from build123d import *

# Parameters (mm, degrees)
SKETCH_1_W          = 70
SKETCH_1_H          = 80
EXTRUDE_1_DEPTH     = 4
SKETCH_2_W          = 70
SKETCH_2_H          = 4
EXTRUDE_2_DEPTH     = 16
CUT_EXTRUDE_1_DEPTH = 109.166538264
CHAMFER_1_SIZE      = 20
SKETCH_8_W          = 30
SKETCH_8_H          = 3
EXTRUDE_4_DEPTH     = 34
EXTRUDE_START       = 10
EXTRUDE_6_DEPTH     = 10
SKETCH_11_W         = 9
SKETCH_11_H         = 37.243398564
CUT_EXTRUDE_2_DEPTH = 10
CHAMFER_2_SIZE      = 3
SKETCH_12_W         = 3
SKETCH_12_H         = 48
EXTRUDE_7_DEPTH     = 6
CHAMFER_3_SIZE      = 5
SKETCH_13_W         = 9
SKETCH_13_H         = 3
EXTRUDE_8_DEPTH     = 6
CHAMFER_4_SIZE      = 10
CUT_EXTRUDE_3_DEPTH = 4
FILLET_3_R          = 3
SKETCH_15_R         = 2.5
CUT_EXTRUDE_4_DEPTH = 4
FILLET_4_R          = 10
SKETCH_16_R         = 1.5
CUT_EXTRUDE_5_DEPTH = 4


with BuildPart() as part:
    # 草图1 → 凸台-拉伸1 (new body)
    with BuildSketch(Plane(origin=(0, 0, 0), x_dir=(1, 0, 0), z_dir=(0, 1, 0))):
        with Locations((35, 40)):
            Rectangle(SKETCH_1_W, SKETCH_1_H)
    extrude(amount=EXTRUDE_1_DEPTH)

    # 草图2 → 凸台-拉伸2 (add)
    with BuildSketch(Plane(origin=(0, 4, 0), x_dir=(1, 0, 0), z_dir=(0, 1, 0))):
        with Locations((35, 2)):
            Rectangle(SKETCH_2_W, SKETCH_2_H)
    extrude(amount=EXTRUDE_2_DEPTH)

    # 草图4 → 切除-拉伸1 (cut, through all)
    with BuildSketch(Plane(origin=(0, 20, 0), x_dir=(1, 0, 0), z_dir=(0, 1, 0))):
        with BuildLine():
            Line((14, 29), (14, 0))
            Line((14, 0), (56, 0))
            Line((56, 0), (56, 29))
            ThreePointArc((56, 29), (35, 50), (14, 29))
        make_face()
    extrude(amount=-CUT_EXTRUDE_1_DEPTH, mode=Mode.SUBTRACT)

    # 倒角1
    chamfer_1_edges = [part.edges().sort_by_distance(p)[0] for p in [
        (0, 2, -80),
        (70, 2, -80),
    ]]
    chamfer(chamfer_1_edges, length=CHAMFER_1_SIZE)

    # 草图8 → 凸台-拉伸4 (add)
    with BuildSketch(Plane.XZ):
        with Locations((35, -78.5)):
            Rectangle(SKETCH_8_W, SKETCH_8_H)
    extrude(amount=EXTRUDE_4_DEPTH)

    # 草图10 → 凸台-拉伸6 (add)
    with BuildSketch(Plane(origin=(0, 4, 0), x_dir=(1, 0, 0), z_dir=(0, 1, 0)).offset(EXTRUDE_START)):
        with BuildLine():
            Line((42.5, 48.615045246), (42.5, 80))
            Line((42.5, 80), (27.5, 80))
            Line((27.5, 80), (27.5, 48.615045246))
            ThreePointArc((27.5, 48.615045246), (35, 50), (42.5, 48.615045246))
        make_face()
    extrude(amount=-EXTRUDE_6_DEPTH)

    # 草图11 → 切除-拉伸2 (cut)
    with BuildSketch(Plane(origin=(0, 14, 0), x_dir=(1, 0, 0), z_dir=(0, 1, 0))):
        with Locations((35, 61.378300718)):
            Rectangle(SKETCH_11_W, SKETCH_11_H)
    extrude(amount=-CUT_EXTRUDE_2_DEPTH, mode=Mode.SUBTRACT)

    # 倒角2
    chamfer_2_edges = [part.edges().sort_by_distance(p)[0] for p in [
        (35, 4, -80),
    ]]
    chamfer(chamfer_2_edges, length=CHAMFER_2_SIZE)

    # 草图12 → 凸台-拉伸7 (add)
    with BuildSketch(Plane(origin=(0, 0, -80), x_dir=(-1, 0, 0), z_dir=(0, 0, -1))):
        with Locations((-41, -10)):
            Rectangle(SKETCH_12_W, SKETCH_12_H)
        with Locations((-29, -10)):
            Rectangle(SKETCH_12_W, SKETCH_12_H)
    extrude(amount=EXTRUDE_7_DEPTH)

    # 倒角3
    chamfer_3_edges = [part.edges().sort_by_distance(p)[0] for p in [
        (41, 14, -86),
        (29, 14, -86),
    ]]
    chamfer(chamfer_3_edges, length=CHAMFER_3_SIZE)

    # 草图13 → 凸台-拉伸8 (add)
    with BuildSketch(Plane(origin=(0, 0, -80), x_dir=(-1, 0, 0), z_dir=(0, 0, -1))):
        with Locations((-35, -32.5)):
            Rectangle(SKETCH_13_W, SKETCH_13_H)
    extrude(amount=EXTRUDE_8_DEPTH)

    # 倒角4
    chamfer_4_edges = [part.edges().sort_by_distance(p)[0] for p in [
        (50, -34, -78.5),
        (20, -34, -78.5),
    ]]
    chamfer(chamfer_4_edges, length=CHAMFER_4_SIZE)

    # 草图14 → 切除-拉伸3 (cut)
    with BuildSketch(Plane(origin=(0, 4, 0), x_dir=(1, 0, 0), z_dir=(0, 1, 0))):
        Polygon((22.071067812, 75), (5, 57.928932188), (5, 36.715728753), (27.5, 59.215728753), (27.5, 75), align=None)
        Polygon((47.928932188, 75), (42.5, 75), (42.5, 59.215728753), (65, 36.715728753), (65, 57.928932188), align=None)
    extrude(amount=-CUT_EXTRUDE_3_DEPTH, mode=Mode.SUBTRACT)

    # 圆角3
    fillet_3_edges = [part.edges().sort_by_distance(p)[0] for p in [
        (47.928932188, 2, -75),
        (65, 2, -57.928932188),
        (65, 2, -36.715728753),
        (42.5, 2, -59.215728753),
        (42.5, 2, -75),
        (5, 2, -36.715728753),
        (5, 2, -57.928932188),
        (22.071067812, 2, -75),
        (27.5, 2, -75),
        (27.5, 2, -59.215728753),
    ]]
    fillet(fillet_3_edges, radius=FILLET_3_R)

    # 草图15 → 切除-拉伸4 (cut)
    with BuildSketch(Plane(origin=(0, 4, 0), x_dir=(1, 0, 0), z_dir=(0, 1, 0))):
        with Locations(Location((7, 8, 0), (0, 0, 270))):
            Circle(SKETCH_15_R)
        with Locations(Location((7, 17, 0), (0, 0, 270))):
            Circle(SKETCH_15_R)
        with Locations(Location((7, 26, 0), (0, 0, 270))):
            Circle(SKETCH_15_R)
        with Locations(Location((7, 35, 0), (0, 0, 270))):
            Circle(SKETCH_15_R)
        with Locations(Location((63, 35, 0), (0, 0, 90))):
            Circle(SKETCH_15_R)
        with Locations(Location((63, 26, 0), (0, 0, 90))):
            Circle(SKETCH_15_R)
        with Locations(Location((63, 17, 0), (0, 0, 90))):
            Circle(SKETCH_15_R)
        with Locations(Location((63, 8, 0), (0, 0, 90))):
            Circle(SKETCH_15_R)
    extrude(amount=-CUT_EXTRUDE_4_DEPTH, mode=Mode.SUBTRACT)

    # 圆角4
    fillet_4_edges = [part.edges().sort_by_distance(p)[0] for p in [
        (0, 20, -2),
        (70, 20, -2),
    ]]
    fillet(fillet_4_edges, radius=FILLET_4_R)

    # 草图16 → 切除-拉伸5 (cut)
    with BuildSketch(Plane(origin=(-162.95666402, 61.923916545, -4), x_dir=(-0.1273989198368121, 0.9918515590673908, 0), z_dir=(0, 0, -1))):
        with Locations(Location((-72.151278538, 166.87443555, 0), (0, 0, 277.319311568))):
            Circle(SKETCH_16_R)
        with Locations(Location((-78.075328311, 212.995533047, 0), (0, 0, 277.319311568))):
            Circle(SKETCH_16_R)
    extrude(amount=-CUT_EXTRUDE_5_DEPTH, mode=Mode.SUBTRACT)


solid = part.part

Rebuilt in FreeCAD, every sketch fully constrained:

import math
import FreeCAD as App
import Part
import Sketcher

V = App.Vector
Q = App.Units.Quantity


def edges_at(feature, points):
    """Names of the edges that pass closest to the given points."""
    edges = feature.Shape.Edges
    near = lambda p: min(range(len(edges)), key=lambda i: edges[i].distToShape(Part.Vertex(*p))[0])
    return sorted({f"Edge{near(p) + 1}" for p in points})

doc = App.newDocument("Part")
params = doc.addObject("Spreadsheet::Sheet", "Params")
for row, (alias, value) in enumerate([
    ("sketch1_width", "70 mm"),
    ("sketch1_height", "80 mm"),
    ("pad1_length", "4 mm"),
    ("sketch2_width", "70 mm"),
    ("sketch2_height", "4 mm"),
    ("pad2_length", "16 mm"),
    ("sketch3_radius", "21 mm"),
    ("sketch3_height", "29 mm"),
    ("chamfer_size", "20 mm"),
    ("sketch4_width", "30 mm"),
    ("sketch4_height", "3 mm"),
    ("pad3_length", "34 mm"),
    ("sketch5_radius", "21 mm"),
    ("sketch5_width", "15 mm"),
    ("pad4_length", "10 mm"),
    ("sketch6_width", "9 mm"),
    ("pocket2_length", "10 mm"),
    ("chamfer2_size", "3 mm"),
    ("sketch7_width", "3 mm"),
    ("sketch7_height", "48 mm"),
    ("pad5_length", "6 mm"),
    ("chamfer3_size", "5 mm"),
    ("sketch8_width", "9 mm"),
    ("sketch8_height", "3 mm"),
    ("pad6_length", "6 mm"),
    ("chamfer4_size", "10 mm"),
    ("pocket3_length", "4 mm"),
    ("fillet_radius", "3 mm"),
    ("sketch10_diameter", "5 mm"),
    ("pocket4_length", "4 mm"),
    ("fillet2_radius", "10 mm"),
    ("sketch11_diameter", "3 mm"),
    ("pocket5_length", "4 mm"),
], start=1):
    params.set(f"A{row}", alias)
    params.set(f"B{row}", "=" + value)
    params.setAlias(f"B{row}", alias)

body = doc.addObject("PartDesign::Body", "Body")

# Sketch on XZ plane
sketch1 = doc.addObject("Sketcher::SketchObject", "Sketch")
body.addObject(sketch1)
sketch1.AttachmentSupport = (doc.XZ_Plane, [""])
sketch1.MapMode = "FlatFace"
sketch1.addGeometry([
    Part.LineSegment(V(0, -80, 0), V(0, 0, 0)),
    Part.LineSegment(V(0, 0, 0), V(70, 0, 0)),
    Part.LineSegment(V(70, 0, 0), V(70, -80, 0)),
    Part.LineSegment(V(70, -80, 0), V(0, -80, 0)),
], False)
sketch1.addConstraint([
    Sketcher.Constraint("Coincident", 0, 2, 1, 1),
    Sketcher.Constraint("Coincident", 1, 2, 2, 1),
    Sketcher.Constraint("Coincident", 2, 2, 3, 1),
    Sketcher.Constraint("Coincident", 3, 2, 0, 1),
    Sketcher.Constraint("Vertical", 0),
    Sketcher.Constraint("Horizontal", 1),
    Sketcher.Constraint("Vertical", 2),
    Sketcher.Constraint("Horizontal", 3),
    Sketcher.Constraint("Coincident", 0, 2, -1, 1),
    Sketcher.Constraint("DistanceX", 1, 1, 1, 2, Q("70 mm")),
    Sketcher.Constraint("DistanceY", 0, 1, 0, 2, Q("80 mm")),
])
sketch1.setExpression("Constraints[9]", "Params.sketch1_width")
sketch1.setExpression("Constraints[10]", "Params.sketch1_height")
pad1 = doc.addObject("PartDesign::Pad", "Pad")
body.addObject(pad1)
pad1.Profile = sketch1
pad1.setExpression("Length", "Params.pad1_length")
pad1.Reversed = True

# Sketch on XZ plane
sketch2 = doc.addObject("Sketcher::SketchObject", "Sketch001")
body.addObject(sketch2)
sketch2.AttachmentSupport = (doc.XZ_Plane, [""])
sketch2.MapMode = "FlatFace"
sketch2.AttachmentOffset = App.Placement(V(0, 0, -4), App.Rotation())
sketch2.addGeometry([
    Part.LineSegment(V(0, -4, 0), V(0, 0, 0)),
    Part.LineSegment(V(0, 0, 0), V(70, 0, 0)),
    Part.LineSegment(V(70, 0, 0), V(70, -4, 0)),
    Part.LineSegment(V(70, -4, 0), V(0, -4, 0)),
], False)
sketch2.addConstraint([
    Sketcher.Constraint("Coincident", 0, 2, 1, 1),
    Sketcher.Constraint("Coincident", 1, 2, 2, 1),
    Sketcher.Constraint("Coincident", 2, 2, 3, 1),
    Sketcher.Constraint("Coincident", 3, 2, 0, 1),
    Sketcher.Constraint("Vertical", 0),
    Sketcher.Constraint("Horizontal", 1),
    Sketcher.Constraint("Vertical", 2),
    Sketcher.Constraint("Horizontal", 3),
    Sketcher.Constraint("Coincident", 0, 2, -1, 1),
    Sketcher.Constraint("DistanceX", 1, 1, 1, 2, Q("70 mm")),
    Sketcher.Constraint("DistanceY", 0, 1, 0, 2, Q("4 mm")),
])
sketch2.setExpression("Constraints[9]", "Params.sketch2_width")
sketch2.setExpression("Constraints[10]", "Params.sketch2_height")
pad2 = doc.addObject("PartDesign::Pad", "Pad001")
body.addObject(pad2)
pad2.Profile = sketch2
pad2.setExpression("Length", "Params.pad2_length")
pad2.Reversed = True

# Sketch on XZ plane
sketch3 = doc.addObject("Sketcher::SketchObject", "Sketch002")
body.addObject(sketch3)
sketch3.AttachmentSupport = (doc.XZ_Plane, [""])
sketch3.MapMode = "FlatFace"
sketch3.AttachmentOffset = App.Placement(V(0, 0, -20), App.Rotation())
sketch3.addGeometry([
    Part.LineSegment(V(14, -29, 0), V(14, 0, 0)),
    Part.LineSegment(V(14, 0, 0), V(56, 0, 0)),
    Part.LineSegment(V(56, 0, 0), V(56, -29, 0)),
    Part.ArcOfCircle(Part.Circle(V(35, -29, 0), V(0, 0, 1), 21), math.radians(180), math.radians(360)),
], False)
sketch3.addConstraint([
    Sketcher.Constraint("Coincident", 0, 2, 1, 1),
    Sketcher.Constraint("Coincident", 1, 2, 2, 1),
    Sketcher.Constraint("Tangent", 2, 2, 3, 2),
    Sketcher.Constraint("Tangent", 3, 1, 0, 1),
    Sketcher.Constraint("Vertical", 0),
    Sketcher.Constraint("Horizontal", 1),
    Sketcher.Constraint("Vertical", 2),
    Sketcher.Constraint("PointOnObject", 0, 2, -1),
    Sketcher.Constraint("Radius", 3, Q("21 mm")),
    Sketcher.Constraint("DistanceY", 0, 1, 0, 2, Q("29 mm")),
    Sketcher.Constraint("DistanceX", -1, 1, 3, 3, Q("35 mm")),
])
sketch3.setExpression("Constraints[8]", "Params.sketch3_radius")
sketch3.setExpression("Constraints[9]", "Params.sketch3_height")
pocket1 = doc.addObject("PartDesign::Pocket", "Pocket")
body.addObject(pocket1)
pocket1.Profile = sketch3
pocket1.Type = "ThroughAll"
pocket1.Reversed = True
doc.recompute()

chamfer = doc.addObject("PartDesign::Chamfer", "Chamfer")
body.addObject(chamfer)
chamfer.Base = (pocket1, edges_at(pocket1, [(0, 2, -80), (70, 2, -80)]))
chamfer.setExpression("Size", "Params.chamfer_size")

# Sketch on XZ plane
sketch4 = doc.addObject("Sketcher::SketchObject", "Sketch003")
body.addObject(sketch4)
sketch4.AttachmentSupport = (doc.XZ_Plane, [""])
sketch4.MapMode = "FlatFace"
sketch4.addGeometry([
    Part.LineSegment(V(20, -77, 0), V(20, -80, 0)),
    Part.LineSegment(V(20, -80, 0), V(50, -80, 0)),
    Part.LineSegment(V(50, -80, 0), V(50, -77, 0)),
    Part.LineSegment(V(50, -77, 0), V(20, -77, 0)),
], False)
sketch4.addConstraint([
    Sketcher.Constraint("Coincident", 0, 2, 1, 1),
    Sketcher.Constraint("Coincident", 1, 2, 2, 1),
    Sketcher.Constraint("Coincident", 2, 2, 3, 1),
    Sketcher.Constraint("Coincident", 3, 2, 0, 1),
    Sketcher.Constraint("Vertical", 0),
    Sketcher.Constraint("Horizontal", 1),
    Sketcher.Constraint("Vertical", 2),
    Sketcher.Constraint("Horizontal", 3),
    Sketcher.Constraint("DistanceX", 1, 1, 1, 2, Q("30 mm")),
    Sketcher.Constraint("DistanceY", 0, 2, 0, 1, Q("3 mm")),
    Sketcher.Constraint("DistanceX", -1, 1, 0, 2, Q("20 mm")),
    Sketcher.Constraint("DistanceY", 0, 2, -1, 1, Q("80 mm")),
])
sketch4.setExpression("Constraints[8]", "Params.sketch4_width")
sketch4.setExpression("Constraints[9]", "Params.sketch4_height")
pad3 = doc.addObject("PartDesign::Pad", "Pad002")
body.addObject(pad3)
pad3.Profile = sketch4
pad3.setExpression("Length", "Params.pad3_length")

# Sketch on XZ plane
sketch5 = doc.addObject("Sketcher::SketchObject", "Sketch004")
body.addObject(sketch5)
sketch5.AttachmentSupport = (doc.XZ_Plane, [""])
sketch5.MapMode = "FlatFace"
sketch5.AttachmentOffset = App.Placement(V(0, 0, -14), App.Rotation())
sketch5.addGeometry([
    Part.LineSegment(V(42.5, -48.615045, 0), V(42.5, -80, 0)),
    Part.LineSegment(V(42.5, -80, 0), V(27.5, -80, 0)),
    Part.LineSegment(V(27.5, -80, 0), V(27.5, -48.615045, 0)),
    Part.ArcOfCircle(Part.Circle(V(35, -29, 0), V(0, 0, 1), 21), math.radians(-110.924832), math.radians(-69.075168)),
], False)
sketch5.addConstraint([
    Sketcher.Constraint("Coincident", 0, 2, 1, 1),
    Sketcher.Constraint("Coincident", 1, 2, 2, 1),
    Sketcher.Constraint("Coincident", 2, 2, 3, 1),
    Sketcher.Constraint("Coincident", 3, 2, 0, 1),
    Sketcher.Constraint("Vertical", 0),
    Sketcher.Constraint("Horizontal", 1),
    Sketcher.Constraint("Vertical", 2),
    Sketcher.Constraint("Horizontal", 2, 2, 3, 2),
    Sketcher.Constraint("Radius", 3, Q("21 mm")),
    Sketcher.Constraint("DistanceX", 1, 2, 1, 1, Q("15 mm")),
    Sketcher.Constraint("DistanceX", -1, 1, 3, 3, Q("35 mm")),
    Sketcher.Constraint("DistanceY", 3, 3, -1, 1, Q("29 mm")),
    Sketcher.Constraint("DistanceY", 0, 2, -1, 1, Q("80 mm")),
])
sketch5.setExpression("Constraints[8]", "Params.sketch5_radius")
sketch5.setExpression("Constraints[9]", "Params.sketch5_width")
pad4 = doc.addObject("PartDesign::Pad", "Pad003")
body.addObject(pad4)
pad4.Profile = sketch5
pad4.setExpression("Length", "Params.pad4_length")

# Sketch on XZ plane
sketch6 = doc.addObject("Sketcher::SketchObject", "Sketch005")
body.addObject(sketch6)
sketch6.AttachmentSupport = (doc.XZ_Plane, [""])
sketch6.MapMode = "FlatFace"
sketch6.AttachmentOffset = App.Placement(V(0, 0, -14), App.Rotation())
sketch6.addGeometry([
    Part.LineSegment(V(30.5, -80, 0), V(30.5, -42.756601, 0)),
    Part.LineSegment(V(30.5, -42.756601, 0), V(39.5, -42.756601, 0)),
    Part.LineSegment(V(39.5, -42.756601, 0), V(39.5, -80, 0)),
    Part.LineSegment(V(39.5, -80, 0), V(30.5, -80, 0)),
], False)
sketch6.addConstraint([
    Sketcher.Constraint("Coincident", 0, 2, 1, 1),
    Sketcher.Constraint("Coincident", 1, 2, 2, 1),
    Sketcher.Constraint("Coincident", 2, 2, 3, 1),
    Sketcher.Constraint("Coincident", 3, 2, 0, 1),
    Sketcher.Constraint("Vertical", 0),
    Sketcher.Constraint("Horizontal", 1),
    Sketcher.Constraint("Vertical", 2),
    Sketcher.Constraint("Horizontal", 3),
    Sketcher.Constraint("DistanceX", 1, 1, 1, 2, Q("9 mm")),
    Sketcher.Constraint("DistanceY", 2, 2, -1, 1, Q("80 mm")),
    Sketcher.Constraint("DistanceX", -1, 1, 0, 2, Q("30.5 mm")),
    Sketcher.Constraint("DistanceY", 0, 1, 0, 2, Q("37.243399 mm")),
])
sketch6.setExpression("Constraints[8]", "Params.sketch6_width")
pocket2 = doc.addObject("PartDesign::Pocket", "Pocket001")
body.addObject(pocket2)
pocket2.Profile = sketch6
pocket2.setExpression("Length", "Params.pocket2_length")
pocket2.Reversed = True
doc.recompute()

chamfer2 = doc.addObject("PartDesign::Chamfer", "Chamfer001")
body.addObject(chamfer2)
chamfer2.Base = (pocket2, edges_at(pocket2, [(35, 4, -80)]))
chamfer2.setExpression("Size", "Params.chamfer2_size")

# Sketch on XY plane
sketch7 = doc.addObject("Sketcher::SketchObject", "Sketch006")
body.addObject(sketch7)
sketch7.AttachmentSupport = (doc.XY_Plane, [""])
sketch7.MapMode = "FlatFace"
sketch7.AttachmentOffset = App.Placement(V(0, 0, -80), App.Rotation())
sketch7.addGeometry([
    Part.LineSegment(V(42.5, 14, 0), V(42.5, -34, 0)),  # 0
    Part.LineSegment(V(42.5, -34, 0), V(39.5, -34, 0)),  # 1
    Part.LineSegment(V(39.5, -34, 0), V(39.5, 14, 0)),  # 2
    Part.LineSegment(V(39.5, 14, 0), V(42.5, 14, 0)),  # 3
    Part.LineSegment(V(30.5, 14, 0), V(30.5, -34, 0)),  # 4
    Part.LineSegment(V(30.5, -34, 0), V(27.5, -34, 0)),  # 5
    Part.LineSegment(V(27.5, -34, 0), V(27.5, 14, 0)),  # 6
    Part.LineSegment(V(27.5, 14, 0), V(30.5, 14, 0)),  # 7
], False)
sketch7.addConstraint([
    Sketcher.Constraint("Coincident", 0, 2, 1, 1),
    Sketcher.Constraint("Coincident", 1, 2, 2, 1),
    Sketcher.Constraint("Coincident", 2, 2, 3, 1),
    Sketcher.Constraint("Coincident", 3, 2, 0, 1),
    Sketcher.Constraint("Coincident", 4, 2, 5, 1),
    Sketcher.Constraint("Coincident", 5, 2, 6, 1),
    Sketcher.Constraint("Coincident", 6, 2, 7, 1),
    Sketcher.Constraint("Coincident", 7, 2, 4, 1),
    Sketcher.Constraint("Vertical", 0),
    Sketcher.Constraint("Horizontal", 1),
    Sketcher.Constraint("Vertical", 2),
    Sketcher.Constraint("Horizontal", 3),
    Sketcher.Constraint("Vertical", 4),
    Sketcher.Constraint("Horizontal", 5),
    Sketcher.Constraint("Vertical", 6),
    Sketcher.Constraint("Horizontal", 7),
    Sketcher.Constraint("Horizontal", 1, 2, 4, 2),
    Sketcher.Constraint("Horizontal", 3, 2, 6, 2),
    Sketcher.Constraint("Equal", 3, 5),
    Sketcher.Constraint("DistanceX", 1, 2, 1, 1, Q("3 mm")),
    Sketcher.Constraint("DistanceY", 0, 2, 0, 1, Q("48 mm")),
    Sketcher.Constraint("DistanceY", 0, 2, -1, 1, Q("34 mm")),
    Sketcher.Constraint("DistanceX", 4, 2, 1, 2, Q("9 mm")),
    Sketcher.Constraint("DistanceX", -1, 1, 0, 2, Q("42.5 mm")),
])
sketch7.setExpression("Constraints[19]", "Params.sketch7_width")
sketch7.setExpression("Constraints[20]", "Params.sketch7_height")
pad5 = doc.addObject("PartDesign::Pad", "Pad004")
body.addObject(pad5)
pad5.Profile = sketch7
pad5.setExpression("Length", "Params.pad5_length")
pad5.Reversed = True
doc.recompute()

chamfer3 = doc.addObject("PartDesign::Chamfer", "Chamfer002")
body.addObject(chamfer3)
chamfer3.Base = (pad5, edges_at(pad5, [(41, 14, -86), (29, 14, -86)]))
chamfer3.setExpression("Size", "Params.chamfer3_size")

# Sketch on XY plane
sketch8 = doc.addObject("Sketcher::SketchObject", "Sketch007")
body.addObject(sketch8)
sketch8.AttachmentSupport = (doc.XY_Plane, [""])
sketch8.MapMode = "FlatFace"
sketch8.AttachmentOffset = App.Placement(V(0, 0, -80), App.Rotation())
sketch8.addGeometry([
    Part.LineSegment(V(39.5, -31, 0), V(39.5, -34, 0)),
    Part.LineSegment(V(39.5, -34, 0), V(30.5, -34, 0)),
    Part.LineSegment(V(30.5, -34, 0), V(30.5, -31, 0)),
    Part.LineSegment(V(30.5, -31, 0), V(39.5, -31, 0)),
], False)
sketch8.addConstraint([
    Sketcher.Constraint("Coincident", 0, 2, 1, 1),
    Sketcher.Constraint("Coincident", 1, 2, 2, 1),
    Sketcher.Constraint("Coincident", 2, 2, 3, 1),
    Sketcher.Constraint("Coincident", 3, 2, 0, 1),
    Sketcher.Constraint("Vertical", 0),
    Sketcher.Constraint("Horizontal", 1),
    Sketcher.Constraint("Vertical", 2),
    Sketcher.Constraint("Horizontal", 3),
    Sketcher.Constraint("DistanceX", 1, 2, 1, 1, Q("9 mm")),
    Sketcher.Constraint("DistanceY", 0, 2, 0, 1, Q("3 mm")),
    Sketcher.Constraint("DistanceY", 0, 2, -1, 1, Q("34 mm")),
    Sketcher.Constraint("DistanceX", -1, 1, 0, 2, Q("39.5 mm")),
])
sketch8.setExpression("Constraints[8]", "Params.sketch8_width")
sketch8.setExpression("Constraints[9]", "Params.sketch8_height")
pad6 = doc.addObject("PartDesign::Pad", "Pad005")
body.addObject(pad6)
pad6.Profile = sketch8
pad6.setExpression("Length", "Params.pad6_length")
pad6.Reversed = True
doc.recompute()

chamfer4 = doc.addObject("PartDesign::Chamfer", "Chamfer003")
body.addObject(chamfer4)
chamfer4.Base = (pad6, edges_at(pad6, [(50, -34, -78.5), (20, -34, -78.5)]))
chamfer4.setExpression("Size", "Params.chamfer4_size")

# Sketch on XZ plane
sketch9 = doc.addObject("Sketcher::SketchObject", "Sketch008")
body.addObject(sketch9)
sketch9.AttachmentSupport = (doc.XZ_Plane, [""])
sketch9.MapMode = "FlatFace"
sketch9.AttachmentOffset = App.Placement(V(0, 0, -4), App.Rotation())
sketch9.addGeometry([
    Part.LineSegment(V(22.071068, -75, 0), V(5, -57.928932, 0)),  # 0
    Part.LineSegment(V(5, -57.928932, 0), V(5, -36.715729, 0)),  # 1
    Part.LineSegment(V(5, -36.715729, 0), V(27.5, -59.215729, 0)),  # 2
    Part.LineSegment(V(27.5, -59.215729, 0), V(27.5, -75, 0)),  # 3
    Part.LineSegment(V(27.5, -75, 0), V(22.071068, -75, 0)),  # 4
    Part.LineSegment(V(47.928932, -75, 0), V(42.5, -75, 0)),  # 5
    Part.LineSegment(V(42.5, -75, 0), V(42.5, -59.215729, 0)),  # 6
    Part.LineSegment(V(42.5, -59.215729, 0), V(65, -36.715729, 0)),  # 7
    Part.LineSegment(V(65, -36.715729, 0), V(65, -57.928932, 0)),  # 8
    Part.LineSegment(V(65, -57.928932, 0), V(47.928932, -75, 0)),  # 9
], False)
sketch9.addConstraint([
    Sketcher.Constraint("Coincident", 0, 2, 1, 1),
    Sketcher.Constraint("Coincident", 1, 2, 2, 1),
    Sketcher.Constraint("Coincident", 2, 2, 3, 1),
    Sketcher.Constraint("Coincident", 3, 2, 4, 1),
    Sketcher.Constraint("Coincident", 4, 2, 0, 1),
    Sketcher.Constraint("Coincident", 5, 2, 6, 1),
    Sketcher.Constraint("Coincident", 6, 2, 7, 1),
    Sketcher.Constraint("Coincident", 7, 2, 8, 1),
    Sketcher.Constraint("Coincident", 8, 2, 9, 1),
    Sketcher.Constraint("Coincident", 9, 2, 5, 1),
    Sketcher.Constraint("Vertical", 1),
    Sketcher.Constraint("Vertical", 3),
    Sketcher.Constraint("Horizontal", 4),
    Sketcher.Constraint("Horizontal", 5),
    Sketcher.Constraint("Vertical", 6),
    Sketcher.Constraint("Vertical", 8),
    Sketcher.Constraint("Parallel", 0, 2),
    Sketcher.Constraint("Perpendicular", 2, 7),
    Sketcher.Constraint("Parallel", 7, 9),
    Sketcher.Constraint("Horizontal", 4, 2, 5, 2),
    Sketcher.Constraint("Horizontal", 2, 2, 6, 2),
    Sketcher.Constraint("Horizontal", 1, 2, 7, 2),
    Sketcher.Constraint("Horizontal", 0, 2, 8, 2),
    Sketcher.Constraint("Equal", 4, 5),
    Sketcher.Constraint("DistanceX", -1, 1, 0, 2, Q("5 mm")),
    Sketcher.Constraint("DistanceY", 3, 2, -1, 1, Q("75 mm")),
    Sketcher.Constraint("DistanceX", -1, 1, 7, 2, Q("65 mm")),
    Sketcher.Constraint("DistanceX", 3, 2, 5, 2, Q("15 mm")),
    Sketcher.Constraint("DistanceY", 3, 2, 3, 1, Q("15.784271 mm")),
    Sketcher.Constraint("DistanceX", 4, 2, 4, 1, Q("5.428932 mm")),
])
pocket3 = doc.addObject("PartDesign::Pocket", "Pocket002")
body.addObject(pocket3)
pocket3.Profile = sketch9
pocket3.setExpression("Length", "Params.pocket3_length")
pocket3.Reversed = True
doc.recompute()

fillet = doc.addObject("PartDesign::Fillet", "Fillet")
body.addObject(fillet)
fillet.Base = (pocket3, edges_at(pocket3, [
    (47.929, 2, -75),
    (65, 2, -57.929),
    (65, 2, -36.716),
    (42.5, 2, -59.216),
    (42.5, 2, -75),
    (5, 2, -36.716),
    (5, 2, -57.929),
    (22.071, 2, -75),
    (27.5, 2, -75),
    (27.5, 2, -59.216),
]))
fillet.setExpression("Radius", "Params.fillet_radius")

# Sketch on XZ plane
sketch10 = doc.addObject("Sketcher::SketchObject", "Sketch009")
body.addObject(sketch10)
sketch10.AttachmentSupport = (doc.XZ_Plane, [""])
sketch10.MapMode = "FlatFace"
sketch10.AttachmentOffset = App.Placement(V(0, 0, -4), App.Rotation())
sketch10.addGeometry([
    Part.Circle(V(7, -8, 0), V(0, 0, 1), 2.5),  # 0
    Part.Circle(V(7, -17, 0), V(0, 0, 1), 2.5),  # 1
    Part.Circle(V(7, -26, 0), V(0, 0, 1), 2.5),  # 2
    Part.Circle(V(7, -35, 0), V(0, 0, 1), 2.5),  # 3
    Part.Circle(V(63, -35, 0), V(0, 0, 1), 2.5),  # 4
    Part.Circle(V(63, -26, 0), V(0, 0, 1), 2.5),  # 5
    Part.Circle(V(63, -17, 0), V(0, 0, 1), 2.5),  # 6
    Part.Circle(V(63, -8, 0), V(0, 0, 1), 2.5),  # 7
], False)
sketch10.addConstraint([
    Sketcher.Constraint("Equal", 0, 1),
    Sketcher.Constraint("Equal", 1, 2),
    Sketcher.Constraint("Equal", 2, 3),
    Sketcher.Constraint("Equal", 3, 4),
    Sketcher.Constraint("Equal", 4, 5),
    Sketcher.Constraint("Equal", 5, 6),
    Sketcher.Constraint("Equal", 6, 7),
    Sketcher.Constraint("Horizontal", 3, 3, 4, 3),
    Sketcher.Constraint("Horizontal", 2, 3, 5, 3),
    Sketcher.Constraint("Horizontal", 1, 3, 6, 3),
    Sketcher.Constraint("Horizontal", 0, 3, 7, 3),
    Sketcher.Constraint("Vertical", 0, 3, 1, 3),
    Sketcher.Constraint("Vertical", 1, 3, 2, 3),
    Sketcher.Constraint("Vertical", 2, 3, 3, 3),
    Sketcher.Constraint("Vertical", 4, 3, 5, 3),
    Sketcher.Constraint("Vertical", 5, 3, 6, 3),
    Sketcher.Constraint("Vertical", 6, 3, 7, 3),
    Sketcher.Constraint("Diameter", 0, Q("5 mm")),
    Sketcher.Constraint("DistanceX", -1, 1, 0, 3, Q("7 mm")),
    Sketcher.Constraint("DistanceY", 0, 3, -1, 1, Q("8 mm")),
    Sketcher.Constraint("DistanceY", 1, 3, -1, 1, Q("17 mm")),
    Sketcher.Constraint("DistanceY", 2, 3, -1, 1, Q("26 mm")),
    Sketcher.Constraint("DistanceY", 3, 3, -1, 1, Q("35 mm")),
    Sketcher.Constraint("DistanceX", -1, 1, 4, 3, Q("63 mm")),
])
sketch10.setExpression("Constraints[17]", "Params.sketch10_diameter")
pocket4 = doc.addObject("PartDesign::Pocket", "Pocket003")
body.addObject(pocket4)
pocket4.Profile = sketch10
pocket4.setExpression("Length", "Params.pocket4_length")
pocket4.Reversed = True
doc.recompute()

fillet2 = doc.addObject("PartDesign::Fillet", "Fillet001")
body.addObject(fillet2)
fillet2.Base = (pocket4, edges_at(pocket4, [(0, 20, -2), (70, 20, -2)]))
fillet2.setExpression("Radius", "Params.fillet2_radius")

# Sketch on XY plane
sketch11 = doc.addObject("Sketcher::SketchObject", "Sketch010")
body.addObject(sketch11)
sketch11.AttachmentSupport = (doc.XY_Plane, [""])
sketch11.MapMode = "FlatFace"
sketch11.AttachmentOffset = App.Placement(V(0, 0, -4), App.Rotation())
sketch11.addGeometry([
    Part.Circle(V(11.75, 11.620181, 0), V(0, 0, 1), 1.5),
    Part.Circle(V(58.25, 11.620181, 0), V(0, 0, 1), 1.5),
], False)
sketch11.addConstraint([
    Sketcher.Constraint("Equal", 0, 1),
    Sketcher.Constraint("Horizontal", 0, 3, 1, 3),
    Sketcher.Constraint("Diameter", 0, Q("3 mm")),
    Sketcher.Constraint("DistanceX", 0, 3, 1, 3, Q("46.5 mm")),
    Sketcher.Constraint("DistanceX", -1, 1, 0, 3, Q("11.75 mm")),
    Sketcher.Constraint("DistanceY", -1, 1, 0, 3, Q("11.620181 mm")),
])
sketch11.setExpression("Constraints[2]", "Params.sketch11_diameter")
pocket5 = doc.addObject("PartDesign::Pocket", "Pocket004")
body.addObject(pocket5)
pocket5.Profile = sketch11
pocket5.setExpression("Length", "Params.pocket5_length")
pocket5.Reversed = True

doc.recompute()
